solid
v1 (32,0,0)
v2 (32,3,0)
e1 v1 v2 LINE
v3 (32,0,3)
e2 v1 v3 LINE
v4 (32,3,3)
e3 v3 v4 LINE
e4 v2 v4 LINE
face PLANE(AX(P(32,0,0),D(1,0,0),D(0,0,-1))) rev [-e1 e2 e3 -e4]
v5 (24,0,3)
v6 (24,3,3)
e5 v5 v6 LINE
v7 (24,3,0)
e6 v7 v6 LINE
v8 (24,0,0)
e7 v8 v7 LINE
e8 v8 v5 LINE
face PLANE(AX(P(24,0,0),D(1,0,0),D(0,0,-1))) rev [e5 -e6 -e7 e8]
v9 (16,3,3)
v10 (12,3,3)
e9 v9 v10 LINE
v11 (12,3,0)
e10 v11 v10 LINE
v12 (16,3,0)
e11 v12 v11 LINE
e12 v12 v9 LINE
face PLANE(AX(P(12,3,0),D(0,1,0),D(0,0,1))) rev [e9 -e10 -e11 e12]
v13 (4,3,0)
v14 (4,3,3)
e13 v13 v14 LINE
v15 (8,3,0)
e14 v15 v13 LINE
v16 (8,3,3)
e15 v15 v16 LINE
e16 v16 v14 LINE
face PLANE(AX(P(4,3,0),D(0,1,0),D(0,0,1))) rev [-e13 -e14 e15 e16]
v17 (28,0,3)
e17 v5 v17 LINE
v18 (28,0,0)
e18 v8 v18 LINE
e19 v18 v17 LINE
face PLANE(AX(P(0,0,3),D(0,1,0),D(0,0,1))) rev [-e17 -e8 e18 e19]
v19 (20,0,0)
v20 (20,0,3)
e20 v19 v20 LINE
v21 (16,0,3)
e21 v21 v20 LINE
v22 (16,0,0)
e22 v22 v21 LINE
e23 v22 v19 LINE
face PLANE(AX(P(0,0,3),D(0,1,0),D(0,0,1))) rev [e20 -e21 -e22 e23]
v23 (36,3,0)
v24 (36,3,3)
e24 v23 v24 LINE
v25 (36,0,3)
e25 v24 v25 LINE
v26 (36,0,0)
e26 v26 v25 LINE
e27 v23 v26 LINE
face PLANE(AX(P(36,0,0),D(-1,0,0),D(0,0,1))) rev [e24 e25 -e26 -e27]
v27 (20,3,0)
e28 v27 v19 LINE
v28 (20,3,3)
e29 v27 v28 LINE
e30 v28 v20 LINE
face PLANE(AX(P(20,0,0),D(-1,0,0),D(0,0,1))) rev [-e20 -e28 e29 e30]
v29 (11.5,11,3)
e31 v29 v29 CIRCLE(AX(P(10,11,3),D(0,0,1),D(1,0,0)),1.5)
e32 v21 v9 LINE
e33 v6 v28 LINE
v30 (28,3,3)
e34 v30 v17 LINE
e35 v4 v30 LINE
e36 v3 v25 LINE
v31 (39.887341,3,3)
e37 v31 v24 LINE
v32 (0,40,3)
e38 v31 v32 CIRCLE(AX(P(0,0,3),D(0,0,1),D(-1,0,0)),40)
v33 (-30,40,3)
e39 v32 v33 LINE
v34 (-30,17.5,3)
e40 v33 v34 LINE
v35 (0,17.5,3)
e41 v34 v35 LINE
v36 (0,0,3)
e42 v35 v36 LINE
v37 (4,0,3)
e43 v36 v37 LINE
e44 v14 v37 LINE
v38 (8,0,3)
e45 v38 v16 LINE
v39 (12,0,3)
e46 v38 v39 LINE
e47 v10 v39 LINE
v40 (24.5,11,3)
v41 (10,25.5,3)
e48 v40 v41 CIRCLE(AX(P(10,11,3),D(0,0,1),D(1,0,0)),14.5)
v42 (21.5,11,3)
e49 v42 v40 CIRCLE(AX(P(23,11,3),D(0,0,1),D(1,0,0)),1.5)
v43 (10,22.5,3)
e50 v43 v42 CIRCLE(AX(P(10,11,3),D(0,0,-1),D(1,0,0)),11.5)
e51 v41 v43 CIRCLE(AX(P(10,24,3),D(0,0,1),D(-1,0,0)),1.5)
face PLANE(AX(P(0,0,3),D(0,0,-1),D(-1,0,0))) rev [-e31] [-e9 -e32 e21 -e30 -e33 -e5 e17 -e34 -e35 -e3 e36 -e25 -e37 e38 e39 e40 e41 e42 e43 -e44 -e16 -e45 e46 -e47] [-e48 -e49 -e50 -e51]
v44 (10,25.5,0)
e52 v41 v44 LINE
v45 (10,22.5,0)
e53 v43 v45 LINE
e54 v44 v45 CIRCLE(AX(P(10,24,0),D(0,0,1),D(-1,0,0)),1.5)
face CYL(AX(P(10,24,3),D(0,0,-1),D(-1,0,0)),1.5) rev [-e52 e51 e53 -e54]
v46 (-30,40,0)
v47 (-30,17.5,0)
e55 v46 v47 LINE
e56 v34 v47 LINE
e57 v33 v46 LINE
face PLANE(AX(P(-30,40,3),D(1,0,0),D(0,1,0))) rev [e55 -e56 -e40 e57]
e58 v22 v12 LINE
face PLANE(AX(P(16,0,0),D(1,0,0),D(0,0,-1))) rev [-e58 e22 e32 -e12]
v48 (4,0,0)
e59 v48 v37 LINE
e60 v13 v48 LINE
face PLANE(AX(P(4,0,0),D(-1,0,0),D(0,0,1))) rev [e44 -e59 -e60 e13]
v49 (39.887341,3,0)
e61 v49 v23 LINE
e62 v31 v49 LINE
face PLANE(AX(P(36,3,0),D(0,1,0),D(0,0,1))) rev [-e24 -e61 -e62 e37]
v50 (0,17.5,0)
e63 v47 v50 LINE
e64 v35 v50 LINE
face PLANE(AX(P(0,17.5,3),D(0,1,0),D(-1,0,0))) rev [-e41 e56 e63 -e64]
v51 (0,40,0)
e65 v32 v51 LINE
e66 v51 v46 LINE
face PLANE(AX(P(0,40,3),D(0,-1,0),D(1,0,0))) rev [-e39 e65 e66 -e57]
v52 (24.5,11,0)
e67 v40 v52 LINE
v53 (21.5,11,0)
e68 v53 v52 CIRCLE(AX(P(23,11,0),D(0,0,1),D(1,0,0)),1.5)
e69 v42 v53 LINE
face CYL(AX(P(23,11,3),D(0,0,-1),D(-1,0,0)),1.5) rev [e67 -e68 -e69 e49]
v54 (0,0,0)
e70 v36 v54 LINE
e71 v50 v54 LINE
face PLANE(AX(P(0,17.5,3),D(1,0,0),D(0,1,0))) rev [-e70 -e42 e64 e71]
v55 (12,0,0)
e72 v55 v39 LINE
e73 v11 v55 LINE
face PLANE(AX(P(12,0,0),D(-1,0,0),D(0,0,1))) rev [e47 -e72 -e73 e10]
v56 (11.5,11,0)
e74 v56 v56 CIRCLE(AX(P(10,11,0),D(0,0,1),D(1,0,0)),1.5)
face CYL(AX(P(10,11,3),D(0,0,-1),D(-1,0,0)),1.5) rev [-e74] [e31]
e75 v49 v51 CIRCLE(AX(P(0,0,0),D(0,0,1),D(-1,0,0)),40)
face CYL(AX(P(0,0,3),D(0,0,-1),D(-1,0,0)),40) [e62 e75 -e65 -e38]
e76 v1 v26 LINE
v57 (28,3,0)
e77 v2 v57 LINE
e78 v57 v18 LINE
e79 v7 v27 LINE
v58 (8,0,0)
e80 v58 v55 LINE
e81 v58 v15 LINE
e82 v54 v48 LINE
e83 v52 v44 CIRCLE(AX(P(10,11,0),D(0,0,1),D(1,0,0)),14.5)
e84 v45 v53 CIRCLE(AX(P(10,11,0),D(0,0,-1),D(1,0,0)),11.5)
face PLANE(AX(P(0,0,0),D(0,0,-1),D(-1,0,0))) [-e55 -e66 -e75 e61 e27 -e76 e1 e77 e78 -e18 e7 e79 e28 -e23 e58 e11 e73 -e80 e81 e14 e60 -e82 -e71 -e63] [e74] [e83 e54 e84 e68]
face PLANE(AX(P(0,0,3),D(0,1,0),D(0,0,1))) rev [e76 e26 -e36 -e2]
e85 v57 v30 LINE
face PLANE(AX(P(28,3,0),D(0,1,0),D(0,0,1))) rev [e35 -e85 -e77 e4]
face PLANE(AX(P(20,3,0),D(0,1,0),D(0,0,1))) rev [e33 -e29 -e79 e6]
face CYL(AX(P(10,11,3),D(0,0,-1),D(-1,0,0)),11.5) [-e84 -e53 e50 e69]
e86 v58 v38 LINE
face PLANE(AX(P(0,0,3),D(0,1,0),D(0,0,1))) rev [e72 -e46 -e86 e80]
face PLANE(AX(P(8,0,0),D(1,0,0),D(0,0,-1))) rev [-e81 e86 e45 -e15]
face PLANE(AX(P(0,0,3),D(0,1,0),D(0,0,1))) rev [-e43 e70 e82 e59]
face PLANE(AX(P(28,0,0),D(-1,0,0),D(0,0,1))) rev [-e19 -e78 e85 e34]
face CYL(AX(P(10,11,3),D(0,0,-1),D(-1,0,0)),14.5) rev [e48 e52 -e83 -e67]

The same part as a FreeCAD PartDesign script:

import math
import FreeCAD as App
import Part
import Sketcher

doc = App.newDocument("Part")
body = doc.addObject("PartDesign::Body", "Body")

# Sketch on XY plane
sketch1 = doc.addObject("Sketcher::SketchObject", "Sketch")
body.addObject(sketch1)
sketch1.AttachmentSupport = (doc.XY_Plane, [""])
sketch1.MapMode = "FlatFace"
sketch1.addGeometry([
    Part.LineSegment(App.Vector(0, 17.5, 0), App.Vector(0, 0, 0)),  # 0
    Part.LineSegment(App.Vector(0, 0, 0), App.Vector(40, 0, 0)),  # 1
    Part.ArcOfCircle(Part.Circle(App.Vector(0, 0, 0), App.Vector(0, 0, 1), 40), math.radians(0), math.radians(90)),  # 2
    Part.LineSegment(App.Vector(0, 40, 0), App.Vector(-30, 40, 0)),  # 3
    Part.LineSegment(App.Vector(-30, 40, 0), App.Vector(-30, 17.5, 0)),  # 4
    Part.LineSegment(App.Vector(-30, 17.5, 0), App.Vector(0, 17.5, 0)),  # 5
    Part.Circle(App.Vector(10, 11, 0), App.Vector(0, 0, 1), 1.5),  # 6
    Part.ArcOfCircle(Part.Circle(App.Vector(10, 11, 0), App.Vector(0, 0, 1), 11.5), math.radians(0), math.radians(90)),  # 7
    Part.ArcOfCircle(Part.Circle(App.Vector(10, 24, 0), App.Vector(0, 0, 1), 1.5), math.radians(90), math.radians(270)),  # 8
    Part.ArcOfCircle(Part.Circle(App.Vector(10, 11, 0), App.Vector(0, 0, 1), 14.5), math.radians(0), math.radians(90)),  # 9
    Part.ArcOfCircle(Part.Circle(App.Vector(23, 11, 0), App.Vector(0, 0, 1), 1.5), math.radians(180), math.radians(360)),  # 10
], False)
sketch1.addConstraint([
    Sketcher.Constraint("Coincident", 0, 2, 1, 1),
    Sketcher.Constraint("Coincident", 1, 2, 2, 1),
    Sketcher.Constraint("Tangent", 2, 2, 3, 1),
    Sketcher.Constraint("Coincident", 3, 2, 4, 1),
    Sketcher.Constraint("Coincident", 4, 2, 5, 1),
    Sketcher.Constraint("Coincident", 5, 2, 0, 1),
    Sketcher.Constraint("Tangent", 7, 2, 8, 2),
    Sketcher.Constraint("Tangent", 8, 1, 9, 2),
    Sketcher.Constraint("Tangent", 9, 1, 10, 2),
    Sketcher.Constraint("Tangent", 10, 1, 7, 1),
    Sketcher.Constraint("Vertical", 0),
    Sketcher.Constraint("Horizontal", 1),
    Sketcher.Constraint("Horizontal", 3),
    Sketcher.Constraint("Vertical", 4),
    Sketcher.Constraint("Horizontal", 5),
    Sketcher.Constraint("Coincident", 2, 3, -1, 1),
    Sketcher.Constraint("Coincident", 0, 2, -1, 1),
    Sketcher.Constraint("Coincident", 7, 3, 6, 3),
    Sketcher.Constraint("Coincident", 9, 3, 6, 3),
    Sketcher.Constraint("Equal", 6, 8),
    Sketcher.Constraint("Horizontal", 9, 3, 10, 3),
    Sketcher.Constraint("Vertical", 7, 3, 8, 3),
    Sketcher.Constraint("Diameter", 6, 3.0),
    Sketcher.Constraint("Radius", 2, 40.0),
    Sketcher.Constraint("Radius", 7, 11.5),
    Sketcher.Constraint("DistanceX", 3, 2, 3, 1, 30.0),
    Sketcher.Constraint("DistanceY", 0, 2, 0, 1, 17.5),
    Sketcher.Constraint("DistanceX", -1, 1, 6, 3, 10.0),
    Sketcher.Constraint("DistanceY", -1, 1, 6, 3, 11.0),
])
pad1 = doc.addObject("PartDesign::Pad", "Pad")
body.addObject(pad1)
pad1.Profile = sketch1
pad1.Length = 3

# Sketch on XY plane
sketch2 = doc.addObject("Sketcher::SketchObject", "Sketch001")
body.addObject(sketch2)
sketch2.AttachmentSupport = (doc.XY_Plane, [""])
sketch2.MapMode = "FlatFace"
sketch2.AttachmentOffset = App.Placement(App.Vector(0, 0, 3), App.Rotation())
sketch2.addGeometry([
    Part.LineSegment(App.Vector(4, 3, 0), App.Vector(4, 0, 0)),
    Part.LineSegment(App.Vector(4, 0, 0), App.Vector(8, 0, 0)),
    Part.LineSegment(App.Vector(8, 0, 0), App.Vector(8, 3, 0)),
    Part.LineSegment(App.Vector(8, 3, 0), App.Vector(4, 3, 0)),
], False)
sketch2.addConstraint([
    Sketcher.Constraint("Coincident", 0, 2, 1, 1),
    Sketcher.Constraint("Coincident", 1, 2, 2, 1),
    Sketcher.Constraint("Coincident", 2, 2, 3, 1),
    Sketcher.Constraint("Coincident", 3, 2, 0, 1),
    Sketcher.Constraint("Vertical", 0),
    Sketcher.Constraint("Horizontal", 1),
    Sketcher.Constraint("Vertical", 2),
    Sketcher.Constraint("Horizontal", 3),
    Sketcher.Constraint("PointOnObject", 0, 2, -1),
    Sketcher.Constraint("DistanceX", 1, 1, 1, 2, 4.0),
    Sketcher.Constraint("DistanceY", 0, 2, 0, 1, 3.0),
    Sketcher.Constraint("DistanceX", -1, 1, 0, 2, 4.0),
])
pocket1 = doc.addObject("PartDesign::Pocket", "Pocket")
body.addObject(pocket1)
pocket1.Profile = sketch2
pocket1.Length = 3
doc.recompute()

linearpattern = doc.addObject("PartDesign::LinearPattern", "LinearPattern")
body.addObject(linearpattern)
linearpattern.Originals = [pocket1]
linearpattern.Direction = (doc.X_Axis, [""])
linearpattern.Mode = "offset"
linearpattern.Offset = 8
linearpattern.Occurrences = 5
body.Tip = linearpattern

doc.recompute()
